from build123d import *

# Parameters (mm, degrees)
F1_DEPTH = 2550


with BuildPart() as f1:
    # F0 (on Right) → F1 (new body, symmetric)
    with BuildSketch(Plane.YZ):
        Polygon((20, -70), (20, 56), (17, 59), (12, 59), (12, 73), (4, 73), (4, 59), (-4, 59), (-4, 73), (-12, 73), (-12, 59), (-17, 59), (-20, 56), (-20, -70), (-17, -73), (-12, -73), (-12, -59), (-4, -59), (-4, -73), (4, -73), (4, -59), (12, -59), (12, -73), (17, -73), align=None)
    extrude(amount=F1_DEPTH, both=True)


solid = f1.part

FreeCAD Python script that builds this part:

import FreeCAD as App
import Part
import Sketcher
Q = App.Units.Quantity

doc = App.newDocument("Part")
body = doc.addObject("PartDesign::Body", "Body")

sketch1 = body.newObject("Sketcher::SketchObject", "Sketch")
sketch1.AttachmentSupport = (doc.getObject("YZ_Plane"), [""])
sketch1.MapMode = "FlatFace"
sketch1.addGeometry([
    Part.LineSegment(App.Vector(20, -70, 0), App.Vector(20, 56, 0)),
    Part.LineSegment(App.Vector(20, 56, 0), App.Vector(17, 59, 0)),
    Part.LineSegment(App.Vector(17, 59, 0), App.Vector(12, 59, 0)),
    Part.LineSegment(App.Vector(12, 59, 0), App.Vector(12, 73, 0)),
    Part.LineSegment(App.Vector(12, 73, 0), App.Vector(4, 73, 0)),
    Part.LineSegment(App.Vector(4, 73, 0), App.Vector(4, 59, 0)),
    Part.LineSegment(App.Vector(4, 59, 0), App.Vector(-4, 59, 0)),
    Part.LineSegment(App.Vector(-4, 59, 0), App.Vector(-4, 73, 0)),
    Part.LineSegment(App.Vector(-4, 73, 0), App.Vector(-12, 73, 0)),
    Part.LineSegment(App.Vector(-12, 73, 0), App.Vector(-12, 59, 0)),
    Part.LineSegment(App.Vector(-12, 59, 0), App.Vector(-17, 59, 0)),
    Part.LineSegment(App.Vector(-17, 59, 0), App.Vector(-20, 56, 0)),
    Part.LineSegment(App.Vector(-20, 56, 0), App.Vector(-20, -70, 0)),
    Part.LineSegment(App.Vector(-20, -70, 0), App.Vector(-17, -73, 0)),
    Part.LineSegment(App.Vector(-17, -73, 0), App.Vector(-12, -73, 0)),
    Part.LineSegment(App.Vector(-12, -73, 0), App.Vector(-12, -59, 0)),
    Part.LineSegment(App.Vector(-12, -59, 0), App.Vector(-4, -59, 0)),
    Part.LineSegment(App.Vector(-4, -59, 0), App.Vector(-4, -73, 0)),
    Part.LineSegment(App.Vector(-4, -73, 0), App.Vector(4, -73, 0)),
    Part.LineSegment(App.Vector(4, -73, 0), App.Vector(4, -59, 0)),
    Part.LineSegment(App.Vector(4, -59, 0), App.Vector(12, -59, 0)),
    Part.LineSegment(App.Vector(12, -59, 0), App.Vector(12, -73, 0)),
    Part.LineSegment(App.Vector(12, -73, 0), App.Vector(17, -73, 0)),
    Part.LineSegment(App.Vector(17, -73, 0), App.Vector(20, -70, 0)),
], False)
sketch1.addConstraint([
    Sketcher.Constraint("Coincident", 0, 2, 1, 1),
    Sketcher.Constraint("Coincident", 1, 2, 2, 1),
    Sketcher.Constraint("Coincident", 2, 2, 3, 1),
    Sketcher.Constraint("Coincident", 3, 2, 4, 1),
    Sketcher.Constraint("Coincident", 4, 2, 5, 1),
    Sketcher.Constraint("Coincident", 5, 2, 6, 1),
    Sketcher.Constraint("Coincident", 6, 2, 7, 1),
    Sketcher.Constraint("Coincident", 7, 2, 8, 1),
    Sketcher.Constraint("Coincident", 8, 2, 9, 1),
    Sketcher.Constraint("Coincident", 9, 2, 10, 1),
    Sketcher.Constraint("Coincident", 10, 2, 11, 1),
    Sketcher.Constraint("Coincident", 11, 2, 12, 1),
    Sketcher.Constraint("Coincident", 12, 2, 13, 1),
    Sketcher.Constraint("Coincident", 13, 2, 14, 1),
    Sketcher.Constraint("Coincident", 14, 2, 15, 1),
    Sketcher.Constraint("Coincident", 15, 2, 16, 1),
    Sketcher.Constraint("Coincident", 16, 2, 17, 1),
    Sketcher.Constraint("Coincident", 17, 2, 18, 1),
    Sketcher.Constraint("Coincident", 18, 2, 19, 1),
    Sketcher.Constraint("Coincident", 19, 2, 20, 1),
    Sketcher.Constraint("Coincident", 20, 2, 21, 1),
    Sketcher.Constraint("Coincident", 21, 2, 22, 1),
    Sketcher.Constraint("Coincident", 22, 2, 23, 1),
    Sketcher.Constraint("Coincident", 23, 2, 0, 1),
    Sketcher.Constraint("Vertical", 0),
    Sketcher.Constraint("Horizontal", 2),
    Sketcher.Constraint("Vertical", 3),
    Sketcher.Constraint("Horizontal", 4),
    Sketcher.Constraint("Vertical", 5),
    Sketcher.Constraint("Horizontal", 6),
    Sketcher.Constraint("Vertical", 7),
    Sketcher.Constraint("Horizontal", 8),
    Sketcher.Constraint("Vertical", 9),
    Sketcher.Constraint("Horizontal", 10),
    Sketcher.Constraint("Vertical", 12),
    Sketcher.Constraint("Horizontal", 14),
    Sketcher.Constraint("Vertical", 15),
    Sketcher.Constraint("Horizontal", 16),
    Sketcher.Constraint("Vertical", 17),
    Sketcher.Constraint("Horizontal", 18),
    Sketcher.Constraint("Vertical", 19),
    Sketcher.Constraint("Horizontal", 20),
    Sketcher.Constraint("Vertical", 21),
    Sketcher.Constraint("Horizontal", 22),
    Sketcher.Constraint("Symmetric", 3, 2, 14, 2, -1, 1),
    Sketcher.Constraint("Symmetric", 5, 2, 16, 2, -1, 1),
    Sketcher.Constraint("Symmetric", 7, 2, 18, 2, -1, 1),
    Sketcher.Constraint("Symmetric", 9, 2, 20, 2, -1, 1),
    Sketcher.Constraint("Symmetric", 4, 2, 7, 2, -2),
    Sketcher.Constraint("Symmetric", 2, 2, 9, 2, -2),
    Sketcher.Constraint("Symmetric", 0, 2, 11, 2, -2),
    Sketcher.Constraint("Symmetric", 13, 2, 22, 2, -2),
    Sketcher.Constraint("Perpendicular", 1, 11),
    Sketcher.Constraint("Perpendicular", 11, 13),
    Sketcher.Constraint("Perpendicular", 13, 23),
    Sketcher.Constraint("Horizontal", 2, 2, 5, 2),
    Sketcher.Constraint("Horizontal", 12, 2, 23, 2),
    Sketcher.Constraint("Vertical", 10, 2, 13, 2),
    Sketcher.Constraint("Equal", 4, 6),
    Sketcher.Constraint("DistanceX", 2, 2, 2, 1, Q("5 mm")),
    Sketcher.Constraint("DistanceX", 4, 2, 4, 1, Q("8 mm")),
    Sketcher.Constraint("DistanceY", 0, 1, 0, 2, Q("126 mm")),
    Sketcher.Constraint("DistanceY", 3, 1, 3, 2, Q("14 mm")),
    Sketcher.Constraint("DistanceX", -1, 1, 0, 2, Q("20 mm")),
])
pad1 = body.newObject("PartDesign::Pad", "Pad")
pad1.Profile = sketch1
pad1.Length = 5100
pad1.Midplane = True

doc.recompute()
